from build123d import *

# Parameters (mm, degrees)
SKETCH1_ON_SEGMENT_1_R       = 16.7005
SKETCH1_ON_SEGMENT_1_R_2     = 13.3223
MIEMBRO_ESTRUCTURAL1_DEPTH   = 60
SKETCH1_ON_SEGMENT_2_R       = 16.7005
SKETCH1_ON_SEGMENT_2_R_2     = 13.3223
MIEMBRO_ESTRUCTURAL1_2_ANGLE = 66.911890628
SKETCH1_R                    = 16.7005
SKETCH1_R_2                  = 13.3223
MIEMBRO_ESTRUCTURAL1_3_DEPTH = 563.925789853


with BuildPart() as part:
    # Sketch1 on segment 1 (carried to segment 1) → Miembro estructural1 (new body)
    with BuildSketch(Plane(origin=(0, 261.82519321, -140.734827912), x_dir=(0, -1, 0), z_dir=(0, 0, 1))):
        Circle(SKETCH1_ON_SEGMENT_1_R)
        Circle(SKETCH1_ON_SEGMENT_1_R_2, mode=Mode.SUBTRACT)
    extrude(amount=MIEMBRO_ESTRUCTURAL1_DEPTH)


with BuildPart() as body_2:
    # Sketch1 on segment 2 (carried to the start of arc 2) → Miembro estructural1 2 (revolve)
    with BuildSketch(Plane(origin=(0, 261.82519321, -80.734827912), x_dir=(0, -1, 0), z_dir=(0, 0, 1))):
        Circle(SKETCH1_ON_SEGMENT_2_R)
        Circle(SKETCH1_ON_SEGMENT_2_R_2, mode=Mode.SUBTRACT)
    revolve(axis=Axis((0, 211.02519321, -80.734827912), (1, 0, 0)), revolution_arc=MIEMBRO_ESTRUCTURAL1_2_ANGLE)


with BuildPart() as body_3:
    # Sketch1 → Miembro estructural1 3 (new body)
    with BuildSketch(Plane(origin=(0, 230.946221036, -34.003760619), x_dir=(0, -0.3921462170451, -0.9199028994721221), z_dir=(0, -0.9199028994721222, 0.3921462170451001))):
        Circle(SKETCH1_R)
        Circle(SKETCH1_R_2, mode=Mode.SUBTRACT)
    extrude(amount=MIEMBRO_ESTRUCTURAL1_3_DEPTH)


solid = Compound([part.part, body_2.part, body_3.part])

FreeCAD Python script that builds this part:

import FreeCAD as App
import Part
import Sketcher
Q = App.Units.Quantity

doc = App.newDocument("Part")
body = doc.addObject("PartDesign::Body", "Body")

sketch1 = body.newObject("Sketcher::SketchObject", "Sketch")
sketch1.AttachmentSupport = (doc.getObject("XY_Plane"), [""])
sketch1.MapMode = "FlatFace"
sketch1.AttachmentOffset = App.Placement(App.Vector(0, 0, -140.734828), App.Rotation())
sketch1.addGeometry([
    Part.Circle(App.Vector(0, 261.825193, 0), App.Vector(0, 0, 1), 16.7005),
    Part.Circle(App.Vector(0, 261.825193, 0), App.Vector(0, 0, 1), 13.3223),
], False)
sketch1.addConstraint([
    Sketcher.Constraint("Coincident", 1, 3, 0, 3),
    Sketcher.Constraint("PointOnObject", 0, 3, -2),
    Sketcher.Constraint("Diameter", 0, Q("1.315 in")),
    Sketcher.Constraint("Diameter", 1, Q("1.049 in")),
    Sketcher.Constraint("DistanceY", -1, 1, 0, 3, 261.825193),
])
pad1 = body.newObject("PartDesign::Pad", "Pad")
pad1.Profile = sketch1
pad1.Length = 60
body2 = doc.addObject("PartDesign::Body", "Body001")

sketch2 = body2.newObject("Sketcher::SketchObject", "Sketch001")
sketch2.AttachmentSupport = (doc.getObject("XY_Plane001"), [""])
sketch2.MapMode = "FlatFace"
sketch2.AttachmentOffset = App.Placement(App.Vector(0, 0, -80.734828), App.Rotation())
sketch2.addGeometry([
    Part.Circle(App.Vector(0, 261.825193, 0), App.Vector(0, 0, 1), 16.7005),
    Part.Circle(App.Vector(0, 261.825193, 0), App.Vector(0, 0, 1), 13.3223),
], False)
sketch2.addGeometry(Part.LineSegment(App.Vector(0, 211.025193, 0), App.Vector(10, 211.025193, 0)), True)
sketch2.addConstraint([
    Sketcher.Constraint("Horizontal", 2),
    Sketcher.Constraint("Coincident", 1, 3, 0, 3),
    Sketcher.Constraint("PointOnObject", 0, 3, -2),
    Sketcher.Constraint("PointOnObject", 2, 1, -2),
    Sketcher.Constraint("Diameter", 0, Q("1.315 in")),
    Sketcher.Constraint("Diameter", 1, Q("1.049 in")),
    Sketcher.Constraint("DistanceY", 2, 1, 0, 3, Q("2 in")),
    Sketcher.Constraint("DistanceX", 2, 1, 2, 2, 10.0),
    Sketcher.Constraint("DistanceY", -1, 1, 0, 3, 261.825193),
])
revolution = body2.newObject("PartDesign::Revolution", "Revolution")
revolution.Profile = sketch2
revolution.ReferenceAxis = (sketch2, ["Axis0"])
revolution.Angle = 66.911891
body3 = doc.addObject("PartDesign::Body", "Body002")

sketch3 = body3.newObject("Sketcher::SketchObject", "Sketch002")
sketch3.Placement = App.Placement(App.Vector(0, 230.946221, -34.003761), App.Rotation(App.Vector(0, -0.392146217, -0.919902899), App.Vector(0.999999999, 0, 0), App.Vector(0, -0.919902899, 0.392146217), "ZXY"))
sketch3.addGeometry([
    Part.Circle(App.Vector(0, 0, 0), App.Vector(0, 0, 1), 16.7005),
    Part.Circle(App.Vector(0, 0, 0), App.Vector(0, 0, 1), 13.3223),
], False)
sketch3.addConstraint([
    Sketcher.Constraint("Coincident", 0, 3, -1, 1),
    Sketcher.Constraint("Coincident", 1, 3, -1, 1),
    Sketcher.Constraint("Diameter", 0, Q("1.315 in")),
    Sketcher.Constraint("Diameter", 1, Q("1.049 in")),
])
pad2 = body3.newObject("PartDesign::Pad", "Pad001")
pad2.Profile = sketch3
pad2.Length = 563.92579

doc.recompute()
